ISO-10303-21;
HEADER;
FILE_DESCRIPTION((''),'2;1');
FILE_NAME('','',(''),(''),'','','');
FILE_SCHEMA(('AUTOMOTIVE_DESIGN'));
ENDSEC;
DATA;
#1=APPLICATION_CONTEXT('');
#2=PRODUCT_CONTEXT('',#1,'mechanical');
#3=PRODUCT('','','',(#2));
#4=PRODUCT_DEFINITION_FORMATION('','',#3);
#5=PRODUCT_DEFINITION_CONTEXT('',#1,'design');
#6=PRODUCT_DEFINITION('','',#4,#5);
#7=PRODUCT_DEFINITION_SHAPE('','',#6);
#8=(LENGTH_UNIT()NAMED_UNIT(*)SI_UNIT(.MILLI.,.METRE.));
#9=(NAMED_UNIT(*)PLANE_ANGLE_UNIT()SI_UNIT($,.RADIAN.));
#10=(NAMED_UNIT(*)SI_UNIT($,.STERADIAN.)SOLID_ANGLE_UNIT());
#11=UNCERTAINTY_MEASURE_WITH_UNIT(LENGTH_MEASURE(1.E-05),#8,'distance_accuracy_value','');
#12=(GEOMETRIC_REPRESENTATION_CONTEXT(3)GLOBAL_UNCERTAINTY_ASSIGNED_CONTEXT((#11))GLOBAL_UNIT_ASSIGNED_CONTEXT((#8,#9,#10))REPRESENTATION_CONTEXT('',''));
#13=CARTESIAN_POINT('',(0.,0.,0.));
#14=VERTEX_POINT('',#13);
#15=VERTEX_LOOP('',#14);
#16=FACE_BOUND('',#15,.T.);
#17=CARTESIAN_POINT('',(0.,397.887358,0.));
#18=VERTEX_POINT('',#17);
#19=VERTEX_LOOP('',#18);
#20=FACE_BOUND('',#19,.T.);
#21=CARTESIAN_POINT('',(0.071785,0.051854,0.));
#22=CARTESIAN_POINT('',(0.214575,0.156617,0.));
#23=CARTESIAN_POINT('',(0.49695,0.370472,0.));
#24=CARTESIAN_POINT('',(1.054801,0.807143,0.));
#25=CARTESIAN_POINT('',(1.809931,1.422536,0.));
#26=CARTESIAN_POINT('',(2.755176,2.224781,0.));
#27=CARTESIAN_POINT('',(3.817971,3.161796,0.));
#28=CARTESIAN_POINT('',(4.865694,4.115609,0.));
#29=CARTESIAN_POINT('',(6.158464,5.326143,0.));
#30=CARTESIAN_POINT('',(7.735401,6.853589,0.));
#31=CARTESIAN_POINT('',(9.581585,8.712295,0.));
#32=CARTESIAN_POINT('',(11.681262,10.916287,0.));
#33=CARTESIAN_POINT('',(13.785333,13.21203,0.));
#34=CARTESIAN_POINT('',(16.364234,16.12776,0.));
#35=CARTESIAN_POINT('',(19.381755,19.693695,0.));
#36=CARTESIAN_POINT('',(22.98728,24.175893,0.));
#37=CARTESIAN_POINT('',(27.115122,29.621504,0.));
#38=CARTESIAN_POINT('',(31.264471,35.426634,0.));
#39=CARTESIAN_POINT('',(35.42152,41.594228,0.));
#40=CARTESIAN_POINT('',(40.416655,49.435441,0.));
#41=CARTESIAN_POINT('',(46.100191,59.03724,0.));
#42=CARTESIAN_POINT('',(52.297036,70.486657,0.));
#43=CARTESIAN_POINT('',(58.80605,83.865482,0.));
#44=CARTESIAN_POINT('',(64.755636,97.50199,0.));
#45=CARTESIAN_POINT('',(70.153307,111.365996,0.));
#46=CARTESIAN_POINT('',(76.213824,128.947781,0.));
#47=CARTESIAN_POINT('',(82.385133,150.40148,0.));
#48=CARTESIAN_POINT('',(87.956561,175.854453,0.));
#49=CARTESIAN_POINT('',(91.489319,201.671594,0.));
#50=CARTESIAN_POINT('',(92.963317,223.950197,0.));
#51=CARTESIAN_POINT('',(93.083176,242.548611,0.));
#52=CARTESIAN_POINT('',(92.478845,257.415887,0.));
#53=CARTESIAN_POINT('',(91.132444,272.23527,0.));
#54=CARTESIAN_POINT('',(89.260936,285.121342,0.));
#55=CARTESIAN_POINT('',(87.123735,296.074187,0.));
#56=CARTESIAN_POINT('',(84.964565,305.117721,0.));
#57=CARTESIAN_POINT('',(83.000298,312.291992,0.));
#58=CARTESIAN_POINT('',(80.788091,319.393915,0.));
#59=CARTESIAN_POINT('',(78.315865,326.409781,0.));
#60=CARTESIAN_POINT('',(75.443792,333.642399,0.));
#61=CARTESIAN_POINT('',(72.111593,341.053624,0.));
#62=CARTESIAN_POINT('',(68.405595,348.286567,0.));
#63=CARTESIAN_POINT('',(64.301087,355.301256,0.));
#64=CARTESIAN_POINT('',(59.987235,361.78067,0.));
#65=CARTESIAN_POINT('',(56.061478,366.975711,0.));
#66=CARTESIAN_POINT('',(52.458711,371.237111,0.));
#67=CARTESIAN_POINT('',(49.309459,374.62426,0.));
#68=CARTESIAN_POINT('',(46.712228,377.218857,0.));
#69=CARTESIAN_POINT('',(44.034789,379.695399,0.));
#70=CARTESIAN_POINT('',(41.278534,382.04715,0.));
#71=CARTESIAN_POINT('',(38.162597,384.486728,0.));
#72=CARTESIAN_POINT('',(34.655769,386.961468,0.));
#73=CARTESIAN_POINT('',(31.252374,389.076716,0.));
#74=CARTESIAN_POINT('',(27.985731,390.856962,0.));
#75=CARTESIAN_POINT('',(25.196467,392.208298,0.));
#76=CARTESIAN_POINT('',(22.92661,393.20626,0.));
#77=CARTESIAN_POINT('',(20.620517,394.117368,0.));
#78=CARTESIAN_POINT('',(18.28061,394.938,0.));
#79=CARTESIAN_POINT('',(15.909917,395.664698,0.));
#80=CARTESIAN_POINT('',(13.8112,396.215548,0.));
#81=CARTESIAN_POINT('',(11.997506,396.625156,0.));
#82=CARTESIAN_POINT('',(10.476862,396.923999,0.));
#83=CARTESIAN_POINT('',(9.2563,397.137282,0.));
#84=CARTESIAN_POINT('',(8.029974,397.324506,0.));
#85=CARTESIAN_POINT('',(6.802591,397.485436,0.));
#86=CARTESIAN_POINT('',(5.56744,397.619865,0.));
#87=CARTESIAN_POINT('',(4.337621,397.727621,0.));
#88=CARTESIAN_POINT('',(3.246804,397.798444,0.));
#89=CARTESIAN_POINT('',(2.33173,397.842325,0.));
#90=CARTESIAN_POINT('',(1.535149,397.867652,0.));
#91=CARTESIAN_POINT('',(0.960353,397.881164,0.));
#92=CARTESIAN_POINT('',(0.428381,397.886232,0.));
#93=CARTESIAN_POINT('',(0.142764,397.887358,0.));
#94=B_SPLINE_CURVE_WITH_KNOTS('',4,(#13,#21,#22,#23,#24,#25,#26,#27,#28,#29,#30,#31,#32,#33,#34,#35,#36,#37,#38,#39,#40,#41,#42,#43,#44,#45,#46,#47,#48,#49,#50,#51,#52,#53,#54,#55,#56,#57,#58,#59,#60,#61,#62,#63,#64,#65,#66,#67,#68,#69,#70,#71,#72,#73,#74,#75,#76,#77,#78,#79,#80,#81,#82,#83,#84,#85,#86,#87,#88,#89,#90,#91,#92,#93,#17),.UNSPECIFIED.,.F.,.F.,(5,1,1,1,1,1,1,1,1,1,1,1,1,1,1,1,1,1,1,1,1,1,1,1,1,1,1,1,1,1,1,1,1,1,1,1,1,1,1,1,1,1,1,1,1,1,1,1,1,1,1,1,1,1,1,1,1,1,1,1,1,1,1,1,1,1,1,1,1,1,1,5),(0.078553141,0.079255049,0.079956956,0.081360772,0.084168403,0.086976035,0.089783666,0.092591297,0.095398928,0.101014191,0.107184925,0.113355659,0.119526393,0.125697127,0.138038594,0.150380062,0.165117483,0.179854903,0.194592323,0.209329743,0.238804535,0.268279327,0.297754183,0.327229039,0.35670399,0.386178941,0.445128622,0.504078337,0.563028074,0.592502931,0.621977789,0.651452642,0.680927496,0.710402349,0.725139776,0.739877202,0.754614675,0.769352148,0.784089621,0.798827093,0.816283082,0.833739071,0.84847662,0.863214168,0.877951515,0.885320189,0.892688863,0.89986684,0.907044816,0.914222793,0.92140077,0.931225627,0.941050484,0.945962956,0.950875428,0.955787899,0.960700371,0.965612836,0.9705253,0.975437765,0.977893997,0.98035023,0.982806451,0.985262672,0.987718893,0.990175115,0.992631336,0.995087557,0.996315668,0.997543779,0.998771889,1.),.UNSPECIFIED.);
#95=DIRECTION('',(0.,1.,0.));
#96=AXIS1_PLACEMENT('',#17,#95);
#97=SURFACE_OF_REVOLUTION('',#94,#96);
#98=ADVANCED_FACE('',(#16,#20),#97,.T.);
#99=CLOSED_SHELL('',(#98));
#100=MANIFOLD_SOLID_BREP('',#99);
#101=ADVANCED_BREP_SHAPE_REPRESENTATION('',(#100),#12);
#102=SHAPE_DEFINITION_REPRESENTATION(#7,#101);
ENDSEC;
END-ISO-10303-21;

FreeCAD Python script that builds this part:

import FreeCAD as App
import Part
import Sketcher

V = App.Vector

doc = App.newDocument("Part")
body = doc.addObject("PartDesign::Body", "Body")

# Sketch on XY plane
sketch1 = doc.addObject("Sketcher::SketchObject", "Sketch")
body.addObject(sketch1)
sketch1.AttachmentSupport = (doc.XY_Plane, [""])
sketch1.MapMode = "FlatFace"
sketch1.addGeometry(Part.LineSegment(V(0, 397.887358, 0), V(0, 0, 0)), False)
sketch1.addGeometry(Part.BSplineCurve([V(0, 397.887358, 0), V(0.142764, 397.887358, 0), V(0.428381, 397.886232, 0), V(0.960353, 397.881164, 0), V(1.535149, 397.867652, 0), V(2.33173, 397.842325, 0), V(3.246804, 397.798444, 0), V(4.337621, 397.727621, 0), V(5.56744, 397.619865, 0), V(6.802591, 397.485436, 0), V(8.029974, 397.324506, 0), V(9.2563, 397.137282, 0), V(10.476862, 396.923999, 0), V(11.997506, 396.625156, 0), V(13.8112, 396.215548, 0), V(15.909917, 395.664698, 0), V(18.28061, 394.938, 0), V(20.620517, 394.117368, 0), V(22.92661, 393.20626, 0), V(25.196467, 392.208298, 0), V(27.985731, 390.856962, 0), V(31.252374, 389.076716, 0), V(34.655769, 386.961468, 0), V(38.162597, 384.486728, 0), V(41.278534, 382.04715, 0), V(44.034789, 379.695399, 0), V(46.712228, 377.218857, 0), V(49.309459, 374.62426, 0), V(52.458711, 371.237111, 0), V(56.061478, 366.975711, 0), V(59.987235, 361.78067, 0), V(64.301087, 355.301256, 0), V(68.405595, 348.286567, 0), V(72.111593, 341.053624, 0), V(75.443792, 333.642399, 0), V(78.315865, 326.409781, 0), V(80.788091, 319.393915, 0), V(83.000298, 312.291992, 0), V(84.964565, 305.117721, 0), V(87.123735, 296.074187, 0), V(89.260936, 285.121342, 0), V(91.132444, 272.23527, 0), V(92.478845, 257.415887, 0), V(93.083176, 242.548611, 0), V(92.963317, 223.950197, 0), V(91.489319, 201.671594, 0), V(87.956561, 175.854453, 0), V(82.385133, 150.40148, 0), V(76.213824, 128.947781, 0), V(70.153307, 111.365996, 0), V(64.755636, 97.50199, 0), V(58.80605, 83.865482, 0), V(52.297036, 70.486657, 0), V(46.100191, 59.03724, 0), V(40.416655, 49.435441, 0), V(35.42152, 41.594228, 0), V(31.264471, 35.426634, 0), V(27.115122, 29.621504, 0), V(22.98728, 24.175893, 0), V(19.381755, 19.693695, 0), V(16.364234, 16.12776, 0), V(13.785333, 13.21203, 0), V(11.681262, 10.916287, 0), V(9.581585, 8.712295, 0), V(7.735401, 6.853589, 0), V(6.158464, 5.326143, 0), V(4.865694, 4.115609, 0), V(3.817971, 3.161796, 0), V(2.755176, 2.224781, 0), V(1.809931, 1.422536, 0), V(1.054801, 0.807143, 0), V(0.49695, 0.370472, 0), V(0.214575, 0.156617, 0), V(0.071785, 0.051854, 0), V(0, 0, 0)], [5, 1, 1, 1, 1, 1, 1, 1, 1, 1, 1, 1, 1, 1, 1, 1, 1, 1, 1, 1, 1, 1, 1, 1, 1, 1, 1, 1, 1, 1, 1, 1, 1, 1, 1, 1, 1, 1, 1, 1, 1, 1, 1, 1, 1, 1, 1, 1, 1, 1, 1, 1, 1, 1, 1, 1, 1, 1, 1, 1, 1, 1, 1, 1, 1, 1, 1, 1, 1, 1, 1, 5], [0.078553141, 0.079781251, 0.081009362, 0.082237473, 0.083465583, 0.085921805, 0.088378026, 0.090834247, 0.093290469, 0.09574669, 0.098202911, 0.100659143, 0.103115376, 0.10802784, 0.112940305, 0.11785277, 0.122765241, 0.127677713, 0.132590185, 0.137502657, 0.147327514, 0.157152371, 0.164330348, 0.171508324, 0.178686301, 0.185864278, 0.193232952, 0.200601625, 0.215338973, 0.230076521, 0.24481407, 0.262270059, 0.279726047, 0.29446352, 0.309200993, 0.323938466, 0.338675938, 0.353413365, 0.368150792, 0.397625645, 0.427100499, 0.456575352, 0.486050209, 0.515525067, 0.574474804, 0.633424519, 0.6923742, 0.721849151, 0.751324101, 0.780798958, 0.810273814, 0.839748606, 0.869223397, 0.883960818, 0.898698238, 0.913435658, 0.928173078, 0.940514546, 0.952856014, 0.959026748, 0.965197482, 0.971368216, 0.97753895, 0.983154212, 0.985961844, 0.988769475, 0.991577106, 0.994384737, 0.997192369, 0.998596184, 0.999298092, 1], False, 4, [1, 1, 1, 1, 1, 1, 1, 1, 1, 1, 1, 1, 1, 1, 1, 1, 1, 1, 1, 1, 1, 1, 1, 1, 1, 1, 1, 1, 1, 1, 1, 1, 1, 1, 1, 1, 1, 1, 1, 1, 1, 1, 1, 1, 1, 1, 1, 1, 1, 1, 1, 1, 1, 1, 1, 1, 1, 1, 1, 1, 1, 1, 1, 1, 1, 1, 1, 1, 1, 1, 1, 1, 1, 1, 1], False), False)
sketch1.addConstraint(Sketcher.Constraint("Block", 1))
sketch1.addConstraint(Sketcher.Constraint("Coincident", 0, 1, 1, 1))
sketch1.addConstraint(Sketcher.Constraint("Coincident", 1, 2, 0, 2))
revolution = doc.addObject("PartDesign::Revolution", "Revolution")
body.addObject(revolution)
revolution.Profile = sketch1
revolution.ReferenceAxis = (sketch1, ["V_Axis"])
revolution.Angle = 360

doc.recompute()
